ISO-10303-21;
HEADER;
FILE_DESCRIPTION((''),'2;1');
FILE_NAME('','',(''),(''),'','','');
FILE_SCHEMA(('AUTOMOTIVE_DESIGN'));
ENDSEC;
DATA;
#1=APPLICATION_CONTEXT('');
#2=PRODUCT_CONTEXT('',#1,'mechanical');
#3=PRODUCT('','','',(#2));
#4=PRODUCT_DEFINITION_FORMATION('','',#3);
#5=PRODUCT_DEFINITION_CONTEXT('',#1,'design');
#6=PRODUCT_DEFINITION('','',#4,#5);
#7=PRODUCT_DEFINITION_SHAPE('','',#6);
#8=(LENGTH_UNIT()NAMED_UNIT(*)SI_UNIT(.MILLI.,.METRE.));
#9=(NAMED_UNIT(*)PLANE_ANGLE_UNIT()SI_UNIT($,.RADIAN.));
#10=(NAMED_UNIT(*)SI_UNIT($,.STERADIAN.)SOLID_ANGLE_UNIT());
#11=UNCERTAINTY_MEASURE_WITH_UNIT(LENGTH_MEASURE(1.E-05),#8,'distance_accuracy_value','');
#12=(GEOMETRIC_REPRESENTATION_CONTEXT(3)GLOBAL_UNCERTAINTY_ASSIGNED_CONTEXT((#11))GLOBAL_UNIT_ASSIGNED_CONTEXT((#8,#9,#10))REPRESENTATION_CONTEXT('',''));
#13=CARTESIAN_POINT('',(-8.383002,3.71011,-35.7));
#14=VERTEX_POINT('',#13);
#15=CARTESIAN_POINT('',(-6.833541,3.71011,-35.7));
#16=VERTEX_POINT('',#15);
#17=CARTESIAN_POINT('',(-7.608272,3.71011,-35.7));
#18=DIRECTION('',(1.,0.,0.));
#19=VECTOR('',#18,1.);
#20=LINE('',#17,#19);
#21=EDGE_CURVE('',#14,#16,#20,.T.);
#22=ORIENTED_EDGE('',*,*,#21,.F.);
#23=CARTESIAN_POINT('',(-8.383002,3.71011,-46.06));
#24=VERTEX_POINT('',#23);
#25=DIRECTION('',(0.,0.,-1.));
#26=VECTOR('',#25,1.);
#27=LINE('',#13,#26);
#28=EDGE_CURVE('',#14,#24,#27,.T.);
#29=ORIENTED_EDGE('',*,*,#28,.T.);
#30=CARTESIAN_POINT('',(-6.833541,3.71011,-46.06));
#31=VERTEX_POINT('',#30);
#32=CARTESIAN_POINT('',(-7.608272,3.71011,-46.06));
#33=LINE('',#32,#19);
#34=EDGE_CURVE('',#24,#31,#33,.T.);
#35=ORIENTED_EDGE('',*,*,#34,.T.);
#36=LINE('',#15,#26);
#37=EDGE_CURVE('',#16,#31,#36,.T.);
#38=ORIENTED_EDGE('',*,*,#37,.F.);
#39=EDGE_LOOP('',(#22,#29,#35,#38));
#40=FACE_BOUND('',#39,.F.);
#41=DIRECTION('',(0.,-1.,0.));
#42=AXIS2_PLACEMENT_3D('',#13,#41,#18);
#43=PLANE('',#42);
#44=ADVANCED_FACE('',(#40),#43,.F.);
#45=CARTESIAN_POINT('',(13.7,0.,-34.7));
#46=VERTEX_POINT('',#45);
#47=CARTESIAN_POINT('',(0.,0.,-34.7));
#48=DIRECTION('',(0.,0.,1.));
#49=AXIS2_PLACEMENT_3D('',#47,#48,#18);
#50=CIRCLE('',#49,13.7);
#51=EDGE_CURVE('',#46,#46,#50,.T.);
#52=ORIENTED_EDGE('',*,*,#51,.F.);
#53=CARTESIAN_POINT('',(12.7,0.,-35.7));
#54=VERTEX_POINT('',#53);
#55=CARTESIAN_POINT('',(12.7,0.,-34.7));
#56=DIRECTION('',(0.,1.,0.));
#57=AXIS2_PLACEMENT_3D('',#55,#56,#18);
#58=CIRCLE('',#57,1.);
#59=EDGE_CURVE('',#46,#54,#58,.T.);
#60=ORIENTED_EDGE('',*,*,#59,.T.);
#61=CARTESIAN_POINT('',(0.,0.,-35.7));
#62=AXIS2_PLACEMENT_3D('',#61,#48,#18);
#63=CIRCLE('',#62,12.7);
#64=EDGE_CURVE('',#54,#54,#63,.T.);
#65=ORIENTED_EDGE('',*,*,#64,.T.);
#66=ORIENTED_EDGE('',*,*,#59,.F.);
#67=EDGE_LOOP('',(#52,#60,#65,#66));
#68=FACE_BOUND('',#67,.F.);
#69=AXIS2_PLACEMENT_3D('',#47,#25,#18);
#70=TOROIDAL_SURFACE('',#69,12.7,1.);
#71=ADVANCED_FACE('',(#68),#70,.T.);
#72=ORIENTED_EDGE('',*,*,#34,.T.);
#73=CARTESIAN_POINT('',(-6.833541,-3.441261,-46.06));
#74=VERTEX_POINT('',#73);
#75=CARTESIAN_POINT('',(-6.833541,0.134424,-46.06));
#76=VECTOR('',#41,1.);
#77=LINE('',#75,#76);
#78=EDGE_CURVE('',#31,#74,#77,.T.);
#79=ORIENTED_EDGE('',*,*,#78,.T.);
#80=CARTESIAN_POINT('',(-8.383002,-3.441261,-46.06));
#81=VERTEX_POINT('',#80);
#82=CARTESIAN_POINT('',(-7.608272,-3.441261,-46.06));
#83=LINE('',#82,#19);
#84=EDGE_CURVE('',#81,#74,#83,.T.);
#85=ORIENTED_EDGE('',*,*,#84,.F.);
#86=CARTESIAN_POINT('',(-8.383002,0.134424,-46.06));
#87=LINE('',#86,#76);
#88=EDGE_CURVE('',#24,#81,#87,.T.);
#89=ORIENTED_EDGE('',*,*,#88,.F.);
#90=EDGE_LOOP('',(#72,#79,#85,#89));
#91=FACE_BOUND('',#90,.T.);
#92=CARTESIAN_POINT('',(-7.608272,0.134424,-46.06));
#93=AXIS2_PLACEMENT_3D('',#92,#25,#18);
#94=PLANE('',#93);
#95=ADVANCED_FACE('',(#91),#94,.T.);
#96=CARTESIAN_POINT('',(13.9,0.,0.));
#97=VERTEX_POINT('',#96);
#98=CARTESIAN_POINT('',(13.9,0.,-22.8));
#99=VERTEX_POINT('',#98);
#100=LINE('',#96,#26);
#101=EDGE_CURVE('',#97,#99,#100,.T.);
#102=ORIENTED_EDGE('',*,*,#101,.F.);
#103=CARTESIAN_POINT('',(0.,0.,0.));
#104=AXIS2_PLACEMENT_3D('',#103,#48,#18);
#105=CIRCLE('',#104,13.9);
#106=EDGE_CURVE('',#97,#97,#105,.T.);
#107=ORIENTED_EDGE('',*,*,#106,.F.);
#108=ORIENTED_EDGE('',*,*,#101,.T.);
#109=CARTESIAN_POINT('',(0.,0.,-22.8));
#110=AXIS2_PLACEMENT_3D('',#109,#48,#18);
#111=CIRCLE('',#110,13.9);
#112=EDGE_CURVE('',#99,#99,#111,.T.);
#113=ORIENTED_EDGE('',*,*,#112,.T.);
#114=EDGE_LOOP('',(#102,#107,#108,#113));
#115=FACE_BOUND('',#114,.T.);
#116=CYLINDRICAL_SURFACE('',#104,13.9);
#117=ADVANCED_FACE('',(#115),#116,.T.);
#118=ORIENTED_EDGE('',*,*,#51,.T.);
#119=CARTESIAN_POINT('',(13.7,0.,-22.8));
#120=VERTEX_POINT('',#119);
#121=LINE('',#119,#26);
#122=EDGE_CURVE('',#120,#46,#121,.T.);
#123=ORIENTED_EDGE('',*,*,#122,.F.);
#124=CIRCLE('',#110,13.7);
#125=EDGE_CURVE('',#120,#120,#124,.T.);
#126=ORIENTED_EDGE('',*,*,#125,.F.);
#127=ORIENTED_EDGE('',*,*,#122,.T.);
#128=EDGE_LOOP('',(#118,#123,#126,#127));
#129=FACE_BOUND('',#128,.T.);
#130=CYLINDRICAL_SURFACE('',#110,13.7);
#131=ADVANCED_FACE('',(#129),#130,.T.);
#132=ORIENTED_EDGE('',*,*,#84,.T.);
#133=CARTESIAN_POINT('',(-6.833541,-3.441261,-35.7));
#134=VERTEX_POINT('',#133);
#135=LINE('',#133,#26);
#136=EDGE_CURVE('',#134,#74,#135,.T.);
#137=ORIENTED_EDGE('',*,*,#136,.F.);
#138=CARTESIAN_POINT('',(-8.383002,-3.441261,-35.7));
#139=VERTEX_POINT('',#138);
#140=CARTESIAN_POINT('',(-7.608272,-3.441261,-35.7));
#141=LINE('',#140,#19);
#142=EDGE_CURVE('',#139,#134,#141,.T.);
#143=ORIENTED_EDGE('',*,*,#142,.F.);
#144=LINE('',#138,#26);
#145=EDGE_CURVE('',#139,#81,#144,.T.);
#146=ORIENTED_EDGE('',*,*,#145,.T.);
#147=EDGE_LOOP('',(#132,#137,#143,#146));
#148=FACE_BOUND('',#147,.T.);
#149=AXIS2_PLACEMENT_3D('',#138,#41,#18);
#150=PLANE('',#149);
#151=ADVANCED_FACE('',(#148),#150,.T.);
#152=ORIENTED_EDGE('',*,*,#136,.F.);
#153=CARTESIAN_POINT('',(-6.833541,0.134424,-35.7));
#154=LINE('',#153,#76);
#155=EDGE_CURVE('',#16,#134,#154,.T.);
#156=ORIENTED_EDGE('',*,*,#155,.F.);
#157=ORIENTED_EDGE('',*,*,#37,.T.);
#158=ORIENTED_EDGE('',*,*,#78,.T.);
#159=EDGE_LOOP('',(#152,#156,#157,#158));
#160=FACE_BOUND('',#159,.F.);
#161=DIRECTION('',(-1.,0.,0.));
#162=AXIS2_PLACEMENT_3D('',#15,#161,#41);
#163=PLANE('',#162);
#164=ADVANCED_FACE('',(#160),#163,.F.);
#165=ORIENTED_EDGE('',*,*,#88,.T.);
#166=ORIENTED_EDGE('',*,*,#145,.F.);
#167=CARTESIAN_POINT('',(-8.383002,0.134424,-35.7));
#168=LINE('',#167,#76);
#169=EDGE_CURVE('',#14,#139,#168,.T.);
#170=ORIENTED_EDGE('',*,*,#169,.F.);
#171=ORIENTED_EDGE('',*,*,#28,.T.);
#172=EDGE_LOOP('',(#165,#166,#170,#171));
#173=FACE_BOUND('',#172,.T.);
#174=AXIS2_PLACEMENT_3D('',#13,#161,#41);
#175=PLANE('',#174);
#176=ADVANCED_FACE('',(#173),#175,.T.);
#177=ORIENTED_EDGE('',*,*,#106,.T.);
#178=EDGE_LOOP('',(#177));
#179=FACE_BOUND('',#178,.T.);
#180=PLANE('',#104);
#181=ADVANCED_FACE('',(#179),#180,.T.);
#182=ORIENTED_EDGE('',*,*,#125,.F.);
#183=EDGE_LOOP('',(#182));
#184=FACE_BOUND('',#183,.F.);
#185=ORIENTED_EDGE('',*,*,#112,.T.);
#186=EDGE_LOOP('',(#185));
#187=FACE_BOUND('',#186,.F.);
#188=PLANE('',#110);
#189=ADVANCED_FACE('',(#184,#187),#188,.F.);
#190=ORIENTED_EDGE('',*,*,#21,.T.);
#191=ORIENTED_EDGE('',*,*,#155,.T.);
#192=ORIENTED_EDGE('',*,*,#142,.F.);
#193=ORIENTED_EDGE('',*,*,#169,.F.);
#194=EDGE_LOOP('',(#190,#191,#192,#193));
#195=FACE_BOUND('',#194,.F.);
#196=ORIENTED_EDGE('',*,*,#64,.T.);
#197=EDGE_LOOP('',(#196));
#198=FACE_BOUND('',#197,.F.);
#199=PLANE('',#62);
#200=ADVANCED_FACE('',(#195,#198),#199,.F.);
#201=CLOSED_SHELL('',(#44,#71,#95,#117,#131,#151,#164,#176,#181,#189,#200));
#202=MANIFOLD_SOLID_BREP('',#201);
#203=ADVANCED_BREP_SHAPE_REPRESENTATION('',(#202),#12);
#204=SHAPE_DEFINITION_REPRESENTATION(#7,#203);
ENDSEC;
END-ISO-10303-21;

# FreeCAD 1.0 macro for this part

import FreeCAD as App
import Part
import Sketcher
from FreeCAD import Vector


def edges_at(feature, points):
    """Names of the edges that pass closest to the given points."""
    edges = feature.Shape.Edges
    near = lambda p: min(range(len(edges)), key=lambda i: edges[i].distToShape(Part.Vertex(*p))[0])
    return sorted({f"Edge{near(p) + 1}" for p in points})


def add_polygon(sketch, points):
    """Adds a closed chain of lines whose ends are joined by coincident constraints."""
    first, n = sketch.GeometryCount, len(points)
    for a, b in zip(points, points[1:] + points[:1]):
        sketch.addGeometry(Part.LineSegment(App.Vector(*a, 0), App.Vector(*b, 0)), False)
    for i in range(n):
        sketch.addConstraint(Sketcher.Constraint("Coincident", first + i, 2, first + (i + 1) % n, 1))

doc = App.newDocument("Part")
body = doc.addObject("PartDesign::Body", "Body")

sketch1 = body.newObject("Sketcher::SketchObject", "Sketch")
sketch1.AttachmentSupport = (doc.getObject("XY_Plane"), [""])
sketch1.MapMode = "FlatFace"
sketch1.addGeometry(Part.Circle(Vector(0, 0, 0), Vector(0, 0, 1), 14), False)
sketch1.addConstraint(Sketcher.Constraint("Coincident", 0, 3, -1, 1))
sketch1.addConstraint(Sketcher.Constraint("Diameter", 0, 27.8))
pad1 = body.newObject("PartDesign::Pad", "Pad")
pad1.Profile = sketch1
pad1.Length = 22.8
pad1.Reversed = True

sketch2 = body.newObject("Sketcher::SketchObject", "Sketch001")
sketch2.AttachmentSupport = (doc.getObject("XY_Plane"), [""])
sketch2.MapMode = "FlatFace"
sketch2.AttachmentOffset = App.Placement(Vector(0, 0, -22.8), App.Rotation())
sketch2.addGeometry(Part.Circle(Vector(0, 0, 0), Vector(0, 0, 1), 14), False)
sketch2.addConstraint(Sketcher.Constraint("Coincident", 0, 3, -1, 1))
sketch2.addConstraint(Sketcher.Constraint("Diameter", 0, 27.4))
pad2 = body.newObject("PartDesign::Pad", "Pad001")
pad2.Profile = sketch2
pad2.Length = 12.9
pad2.Reversed = True
doc.recompute()

fillet = body.newObject("PartDesign::Fillet", "Fillet")
fillet.Base = (pad2, edges_at(pad2, [(-13.7, 0, -35.7)]))
fillet.Radius = 1

sketch3 = body.newObject("Sketcher::SketchObject", "Sketch002")
sketch3.AttachmentSupport = (doc.getObject("XY_Plane"), [""])
sketch3.MapMode = "FlatFace"
sketch3.AttachmentOffset = App.Placement(Vector(0, 0, -35.7), App.Rotation())
add_polygon(sketch3, [(-8.4, -3.4), (-8.4, 3.7), (-6.8, 3.7), (-6.8, -3.4)])
sketch3.addConstraint(Sketcher.Constraint("Vertical", 0))
sketch3.addConstraint(Sketcher.Constraint("Horizontal", 1))
sketch3.addConstraint(Sketcher.Constraint("Vertical", 2))
sketch3.addConstraint(Sketcher.Constraint("Horizontal", 3))
sketch3.addConstraint(Sketcher.Constraint("DistanceX", 1, 1, 1, 2, 1.549461))
sketch3.addConstraint(Sketcher.Constraint("DistanceY", 0, 1, 0, 2, 7.151371))
sketch3.addConstraint(Sketcher.Constraint("DistanceY", -1, 1, 0, 2, 3.71011))
sketch3.addConstraint(Sketcher.Constraint("DistanceX", 1, 2, -1, 1, 6.833541))
pad3 = body.newObject("PartDesign::Pad", "Pad002")
pad3.Profile = sketch3
pad3.Length = 10.36
pad3.Reversed = True

doc.recompute()
